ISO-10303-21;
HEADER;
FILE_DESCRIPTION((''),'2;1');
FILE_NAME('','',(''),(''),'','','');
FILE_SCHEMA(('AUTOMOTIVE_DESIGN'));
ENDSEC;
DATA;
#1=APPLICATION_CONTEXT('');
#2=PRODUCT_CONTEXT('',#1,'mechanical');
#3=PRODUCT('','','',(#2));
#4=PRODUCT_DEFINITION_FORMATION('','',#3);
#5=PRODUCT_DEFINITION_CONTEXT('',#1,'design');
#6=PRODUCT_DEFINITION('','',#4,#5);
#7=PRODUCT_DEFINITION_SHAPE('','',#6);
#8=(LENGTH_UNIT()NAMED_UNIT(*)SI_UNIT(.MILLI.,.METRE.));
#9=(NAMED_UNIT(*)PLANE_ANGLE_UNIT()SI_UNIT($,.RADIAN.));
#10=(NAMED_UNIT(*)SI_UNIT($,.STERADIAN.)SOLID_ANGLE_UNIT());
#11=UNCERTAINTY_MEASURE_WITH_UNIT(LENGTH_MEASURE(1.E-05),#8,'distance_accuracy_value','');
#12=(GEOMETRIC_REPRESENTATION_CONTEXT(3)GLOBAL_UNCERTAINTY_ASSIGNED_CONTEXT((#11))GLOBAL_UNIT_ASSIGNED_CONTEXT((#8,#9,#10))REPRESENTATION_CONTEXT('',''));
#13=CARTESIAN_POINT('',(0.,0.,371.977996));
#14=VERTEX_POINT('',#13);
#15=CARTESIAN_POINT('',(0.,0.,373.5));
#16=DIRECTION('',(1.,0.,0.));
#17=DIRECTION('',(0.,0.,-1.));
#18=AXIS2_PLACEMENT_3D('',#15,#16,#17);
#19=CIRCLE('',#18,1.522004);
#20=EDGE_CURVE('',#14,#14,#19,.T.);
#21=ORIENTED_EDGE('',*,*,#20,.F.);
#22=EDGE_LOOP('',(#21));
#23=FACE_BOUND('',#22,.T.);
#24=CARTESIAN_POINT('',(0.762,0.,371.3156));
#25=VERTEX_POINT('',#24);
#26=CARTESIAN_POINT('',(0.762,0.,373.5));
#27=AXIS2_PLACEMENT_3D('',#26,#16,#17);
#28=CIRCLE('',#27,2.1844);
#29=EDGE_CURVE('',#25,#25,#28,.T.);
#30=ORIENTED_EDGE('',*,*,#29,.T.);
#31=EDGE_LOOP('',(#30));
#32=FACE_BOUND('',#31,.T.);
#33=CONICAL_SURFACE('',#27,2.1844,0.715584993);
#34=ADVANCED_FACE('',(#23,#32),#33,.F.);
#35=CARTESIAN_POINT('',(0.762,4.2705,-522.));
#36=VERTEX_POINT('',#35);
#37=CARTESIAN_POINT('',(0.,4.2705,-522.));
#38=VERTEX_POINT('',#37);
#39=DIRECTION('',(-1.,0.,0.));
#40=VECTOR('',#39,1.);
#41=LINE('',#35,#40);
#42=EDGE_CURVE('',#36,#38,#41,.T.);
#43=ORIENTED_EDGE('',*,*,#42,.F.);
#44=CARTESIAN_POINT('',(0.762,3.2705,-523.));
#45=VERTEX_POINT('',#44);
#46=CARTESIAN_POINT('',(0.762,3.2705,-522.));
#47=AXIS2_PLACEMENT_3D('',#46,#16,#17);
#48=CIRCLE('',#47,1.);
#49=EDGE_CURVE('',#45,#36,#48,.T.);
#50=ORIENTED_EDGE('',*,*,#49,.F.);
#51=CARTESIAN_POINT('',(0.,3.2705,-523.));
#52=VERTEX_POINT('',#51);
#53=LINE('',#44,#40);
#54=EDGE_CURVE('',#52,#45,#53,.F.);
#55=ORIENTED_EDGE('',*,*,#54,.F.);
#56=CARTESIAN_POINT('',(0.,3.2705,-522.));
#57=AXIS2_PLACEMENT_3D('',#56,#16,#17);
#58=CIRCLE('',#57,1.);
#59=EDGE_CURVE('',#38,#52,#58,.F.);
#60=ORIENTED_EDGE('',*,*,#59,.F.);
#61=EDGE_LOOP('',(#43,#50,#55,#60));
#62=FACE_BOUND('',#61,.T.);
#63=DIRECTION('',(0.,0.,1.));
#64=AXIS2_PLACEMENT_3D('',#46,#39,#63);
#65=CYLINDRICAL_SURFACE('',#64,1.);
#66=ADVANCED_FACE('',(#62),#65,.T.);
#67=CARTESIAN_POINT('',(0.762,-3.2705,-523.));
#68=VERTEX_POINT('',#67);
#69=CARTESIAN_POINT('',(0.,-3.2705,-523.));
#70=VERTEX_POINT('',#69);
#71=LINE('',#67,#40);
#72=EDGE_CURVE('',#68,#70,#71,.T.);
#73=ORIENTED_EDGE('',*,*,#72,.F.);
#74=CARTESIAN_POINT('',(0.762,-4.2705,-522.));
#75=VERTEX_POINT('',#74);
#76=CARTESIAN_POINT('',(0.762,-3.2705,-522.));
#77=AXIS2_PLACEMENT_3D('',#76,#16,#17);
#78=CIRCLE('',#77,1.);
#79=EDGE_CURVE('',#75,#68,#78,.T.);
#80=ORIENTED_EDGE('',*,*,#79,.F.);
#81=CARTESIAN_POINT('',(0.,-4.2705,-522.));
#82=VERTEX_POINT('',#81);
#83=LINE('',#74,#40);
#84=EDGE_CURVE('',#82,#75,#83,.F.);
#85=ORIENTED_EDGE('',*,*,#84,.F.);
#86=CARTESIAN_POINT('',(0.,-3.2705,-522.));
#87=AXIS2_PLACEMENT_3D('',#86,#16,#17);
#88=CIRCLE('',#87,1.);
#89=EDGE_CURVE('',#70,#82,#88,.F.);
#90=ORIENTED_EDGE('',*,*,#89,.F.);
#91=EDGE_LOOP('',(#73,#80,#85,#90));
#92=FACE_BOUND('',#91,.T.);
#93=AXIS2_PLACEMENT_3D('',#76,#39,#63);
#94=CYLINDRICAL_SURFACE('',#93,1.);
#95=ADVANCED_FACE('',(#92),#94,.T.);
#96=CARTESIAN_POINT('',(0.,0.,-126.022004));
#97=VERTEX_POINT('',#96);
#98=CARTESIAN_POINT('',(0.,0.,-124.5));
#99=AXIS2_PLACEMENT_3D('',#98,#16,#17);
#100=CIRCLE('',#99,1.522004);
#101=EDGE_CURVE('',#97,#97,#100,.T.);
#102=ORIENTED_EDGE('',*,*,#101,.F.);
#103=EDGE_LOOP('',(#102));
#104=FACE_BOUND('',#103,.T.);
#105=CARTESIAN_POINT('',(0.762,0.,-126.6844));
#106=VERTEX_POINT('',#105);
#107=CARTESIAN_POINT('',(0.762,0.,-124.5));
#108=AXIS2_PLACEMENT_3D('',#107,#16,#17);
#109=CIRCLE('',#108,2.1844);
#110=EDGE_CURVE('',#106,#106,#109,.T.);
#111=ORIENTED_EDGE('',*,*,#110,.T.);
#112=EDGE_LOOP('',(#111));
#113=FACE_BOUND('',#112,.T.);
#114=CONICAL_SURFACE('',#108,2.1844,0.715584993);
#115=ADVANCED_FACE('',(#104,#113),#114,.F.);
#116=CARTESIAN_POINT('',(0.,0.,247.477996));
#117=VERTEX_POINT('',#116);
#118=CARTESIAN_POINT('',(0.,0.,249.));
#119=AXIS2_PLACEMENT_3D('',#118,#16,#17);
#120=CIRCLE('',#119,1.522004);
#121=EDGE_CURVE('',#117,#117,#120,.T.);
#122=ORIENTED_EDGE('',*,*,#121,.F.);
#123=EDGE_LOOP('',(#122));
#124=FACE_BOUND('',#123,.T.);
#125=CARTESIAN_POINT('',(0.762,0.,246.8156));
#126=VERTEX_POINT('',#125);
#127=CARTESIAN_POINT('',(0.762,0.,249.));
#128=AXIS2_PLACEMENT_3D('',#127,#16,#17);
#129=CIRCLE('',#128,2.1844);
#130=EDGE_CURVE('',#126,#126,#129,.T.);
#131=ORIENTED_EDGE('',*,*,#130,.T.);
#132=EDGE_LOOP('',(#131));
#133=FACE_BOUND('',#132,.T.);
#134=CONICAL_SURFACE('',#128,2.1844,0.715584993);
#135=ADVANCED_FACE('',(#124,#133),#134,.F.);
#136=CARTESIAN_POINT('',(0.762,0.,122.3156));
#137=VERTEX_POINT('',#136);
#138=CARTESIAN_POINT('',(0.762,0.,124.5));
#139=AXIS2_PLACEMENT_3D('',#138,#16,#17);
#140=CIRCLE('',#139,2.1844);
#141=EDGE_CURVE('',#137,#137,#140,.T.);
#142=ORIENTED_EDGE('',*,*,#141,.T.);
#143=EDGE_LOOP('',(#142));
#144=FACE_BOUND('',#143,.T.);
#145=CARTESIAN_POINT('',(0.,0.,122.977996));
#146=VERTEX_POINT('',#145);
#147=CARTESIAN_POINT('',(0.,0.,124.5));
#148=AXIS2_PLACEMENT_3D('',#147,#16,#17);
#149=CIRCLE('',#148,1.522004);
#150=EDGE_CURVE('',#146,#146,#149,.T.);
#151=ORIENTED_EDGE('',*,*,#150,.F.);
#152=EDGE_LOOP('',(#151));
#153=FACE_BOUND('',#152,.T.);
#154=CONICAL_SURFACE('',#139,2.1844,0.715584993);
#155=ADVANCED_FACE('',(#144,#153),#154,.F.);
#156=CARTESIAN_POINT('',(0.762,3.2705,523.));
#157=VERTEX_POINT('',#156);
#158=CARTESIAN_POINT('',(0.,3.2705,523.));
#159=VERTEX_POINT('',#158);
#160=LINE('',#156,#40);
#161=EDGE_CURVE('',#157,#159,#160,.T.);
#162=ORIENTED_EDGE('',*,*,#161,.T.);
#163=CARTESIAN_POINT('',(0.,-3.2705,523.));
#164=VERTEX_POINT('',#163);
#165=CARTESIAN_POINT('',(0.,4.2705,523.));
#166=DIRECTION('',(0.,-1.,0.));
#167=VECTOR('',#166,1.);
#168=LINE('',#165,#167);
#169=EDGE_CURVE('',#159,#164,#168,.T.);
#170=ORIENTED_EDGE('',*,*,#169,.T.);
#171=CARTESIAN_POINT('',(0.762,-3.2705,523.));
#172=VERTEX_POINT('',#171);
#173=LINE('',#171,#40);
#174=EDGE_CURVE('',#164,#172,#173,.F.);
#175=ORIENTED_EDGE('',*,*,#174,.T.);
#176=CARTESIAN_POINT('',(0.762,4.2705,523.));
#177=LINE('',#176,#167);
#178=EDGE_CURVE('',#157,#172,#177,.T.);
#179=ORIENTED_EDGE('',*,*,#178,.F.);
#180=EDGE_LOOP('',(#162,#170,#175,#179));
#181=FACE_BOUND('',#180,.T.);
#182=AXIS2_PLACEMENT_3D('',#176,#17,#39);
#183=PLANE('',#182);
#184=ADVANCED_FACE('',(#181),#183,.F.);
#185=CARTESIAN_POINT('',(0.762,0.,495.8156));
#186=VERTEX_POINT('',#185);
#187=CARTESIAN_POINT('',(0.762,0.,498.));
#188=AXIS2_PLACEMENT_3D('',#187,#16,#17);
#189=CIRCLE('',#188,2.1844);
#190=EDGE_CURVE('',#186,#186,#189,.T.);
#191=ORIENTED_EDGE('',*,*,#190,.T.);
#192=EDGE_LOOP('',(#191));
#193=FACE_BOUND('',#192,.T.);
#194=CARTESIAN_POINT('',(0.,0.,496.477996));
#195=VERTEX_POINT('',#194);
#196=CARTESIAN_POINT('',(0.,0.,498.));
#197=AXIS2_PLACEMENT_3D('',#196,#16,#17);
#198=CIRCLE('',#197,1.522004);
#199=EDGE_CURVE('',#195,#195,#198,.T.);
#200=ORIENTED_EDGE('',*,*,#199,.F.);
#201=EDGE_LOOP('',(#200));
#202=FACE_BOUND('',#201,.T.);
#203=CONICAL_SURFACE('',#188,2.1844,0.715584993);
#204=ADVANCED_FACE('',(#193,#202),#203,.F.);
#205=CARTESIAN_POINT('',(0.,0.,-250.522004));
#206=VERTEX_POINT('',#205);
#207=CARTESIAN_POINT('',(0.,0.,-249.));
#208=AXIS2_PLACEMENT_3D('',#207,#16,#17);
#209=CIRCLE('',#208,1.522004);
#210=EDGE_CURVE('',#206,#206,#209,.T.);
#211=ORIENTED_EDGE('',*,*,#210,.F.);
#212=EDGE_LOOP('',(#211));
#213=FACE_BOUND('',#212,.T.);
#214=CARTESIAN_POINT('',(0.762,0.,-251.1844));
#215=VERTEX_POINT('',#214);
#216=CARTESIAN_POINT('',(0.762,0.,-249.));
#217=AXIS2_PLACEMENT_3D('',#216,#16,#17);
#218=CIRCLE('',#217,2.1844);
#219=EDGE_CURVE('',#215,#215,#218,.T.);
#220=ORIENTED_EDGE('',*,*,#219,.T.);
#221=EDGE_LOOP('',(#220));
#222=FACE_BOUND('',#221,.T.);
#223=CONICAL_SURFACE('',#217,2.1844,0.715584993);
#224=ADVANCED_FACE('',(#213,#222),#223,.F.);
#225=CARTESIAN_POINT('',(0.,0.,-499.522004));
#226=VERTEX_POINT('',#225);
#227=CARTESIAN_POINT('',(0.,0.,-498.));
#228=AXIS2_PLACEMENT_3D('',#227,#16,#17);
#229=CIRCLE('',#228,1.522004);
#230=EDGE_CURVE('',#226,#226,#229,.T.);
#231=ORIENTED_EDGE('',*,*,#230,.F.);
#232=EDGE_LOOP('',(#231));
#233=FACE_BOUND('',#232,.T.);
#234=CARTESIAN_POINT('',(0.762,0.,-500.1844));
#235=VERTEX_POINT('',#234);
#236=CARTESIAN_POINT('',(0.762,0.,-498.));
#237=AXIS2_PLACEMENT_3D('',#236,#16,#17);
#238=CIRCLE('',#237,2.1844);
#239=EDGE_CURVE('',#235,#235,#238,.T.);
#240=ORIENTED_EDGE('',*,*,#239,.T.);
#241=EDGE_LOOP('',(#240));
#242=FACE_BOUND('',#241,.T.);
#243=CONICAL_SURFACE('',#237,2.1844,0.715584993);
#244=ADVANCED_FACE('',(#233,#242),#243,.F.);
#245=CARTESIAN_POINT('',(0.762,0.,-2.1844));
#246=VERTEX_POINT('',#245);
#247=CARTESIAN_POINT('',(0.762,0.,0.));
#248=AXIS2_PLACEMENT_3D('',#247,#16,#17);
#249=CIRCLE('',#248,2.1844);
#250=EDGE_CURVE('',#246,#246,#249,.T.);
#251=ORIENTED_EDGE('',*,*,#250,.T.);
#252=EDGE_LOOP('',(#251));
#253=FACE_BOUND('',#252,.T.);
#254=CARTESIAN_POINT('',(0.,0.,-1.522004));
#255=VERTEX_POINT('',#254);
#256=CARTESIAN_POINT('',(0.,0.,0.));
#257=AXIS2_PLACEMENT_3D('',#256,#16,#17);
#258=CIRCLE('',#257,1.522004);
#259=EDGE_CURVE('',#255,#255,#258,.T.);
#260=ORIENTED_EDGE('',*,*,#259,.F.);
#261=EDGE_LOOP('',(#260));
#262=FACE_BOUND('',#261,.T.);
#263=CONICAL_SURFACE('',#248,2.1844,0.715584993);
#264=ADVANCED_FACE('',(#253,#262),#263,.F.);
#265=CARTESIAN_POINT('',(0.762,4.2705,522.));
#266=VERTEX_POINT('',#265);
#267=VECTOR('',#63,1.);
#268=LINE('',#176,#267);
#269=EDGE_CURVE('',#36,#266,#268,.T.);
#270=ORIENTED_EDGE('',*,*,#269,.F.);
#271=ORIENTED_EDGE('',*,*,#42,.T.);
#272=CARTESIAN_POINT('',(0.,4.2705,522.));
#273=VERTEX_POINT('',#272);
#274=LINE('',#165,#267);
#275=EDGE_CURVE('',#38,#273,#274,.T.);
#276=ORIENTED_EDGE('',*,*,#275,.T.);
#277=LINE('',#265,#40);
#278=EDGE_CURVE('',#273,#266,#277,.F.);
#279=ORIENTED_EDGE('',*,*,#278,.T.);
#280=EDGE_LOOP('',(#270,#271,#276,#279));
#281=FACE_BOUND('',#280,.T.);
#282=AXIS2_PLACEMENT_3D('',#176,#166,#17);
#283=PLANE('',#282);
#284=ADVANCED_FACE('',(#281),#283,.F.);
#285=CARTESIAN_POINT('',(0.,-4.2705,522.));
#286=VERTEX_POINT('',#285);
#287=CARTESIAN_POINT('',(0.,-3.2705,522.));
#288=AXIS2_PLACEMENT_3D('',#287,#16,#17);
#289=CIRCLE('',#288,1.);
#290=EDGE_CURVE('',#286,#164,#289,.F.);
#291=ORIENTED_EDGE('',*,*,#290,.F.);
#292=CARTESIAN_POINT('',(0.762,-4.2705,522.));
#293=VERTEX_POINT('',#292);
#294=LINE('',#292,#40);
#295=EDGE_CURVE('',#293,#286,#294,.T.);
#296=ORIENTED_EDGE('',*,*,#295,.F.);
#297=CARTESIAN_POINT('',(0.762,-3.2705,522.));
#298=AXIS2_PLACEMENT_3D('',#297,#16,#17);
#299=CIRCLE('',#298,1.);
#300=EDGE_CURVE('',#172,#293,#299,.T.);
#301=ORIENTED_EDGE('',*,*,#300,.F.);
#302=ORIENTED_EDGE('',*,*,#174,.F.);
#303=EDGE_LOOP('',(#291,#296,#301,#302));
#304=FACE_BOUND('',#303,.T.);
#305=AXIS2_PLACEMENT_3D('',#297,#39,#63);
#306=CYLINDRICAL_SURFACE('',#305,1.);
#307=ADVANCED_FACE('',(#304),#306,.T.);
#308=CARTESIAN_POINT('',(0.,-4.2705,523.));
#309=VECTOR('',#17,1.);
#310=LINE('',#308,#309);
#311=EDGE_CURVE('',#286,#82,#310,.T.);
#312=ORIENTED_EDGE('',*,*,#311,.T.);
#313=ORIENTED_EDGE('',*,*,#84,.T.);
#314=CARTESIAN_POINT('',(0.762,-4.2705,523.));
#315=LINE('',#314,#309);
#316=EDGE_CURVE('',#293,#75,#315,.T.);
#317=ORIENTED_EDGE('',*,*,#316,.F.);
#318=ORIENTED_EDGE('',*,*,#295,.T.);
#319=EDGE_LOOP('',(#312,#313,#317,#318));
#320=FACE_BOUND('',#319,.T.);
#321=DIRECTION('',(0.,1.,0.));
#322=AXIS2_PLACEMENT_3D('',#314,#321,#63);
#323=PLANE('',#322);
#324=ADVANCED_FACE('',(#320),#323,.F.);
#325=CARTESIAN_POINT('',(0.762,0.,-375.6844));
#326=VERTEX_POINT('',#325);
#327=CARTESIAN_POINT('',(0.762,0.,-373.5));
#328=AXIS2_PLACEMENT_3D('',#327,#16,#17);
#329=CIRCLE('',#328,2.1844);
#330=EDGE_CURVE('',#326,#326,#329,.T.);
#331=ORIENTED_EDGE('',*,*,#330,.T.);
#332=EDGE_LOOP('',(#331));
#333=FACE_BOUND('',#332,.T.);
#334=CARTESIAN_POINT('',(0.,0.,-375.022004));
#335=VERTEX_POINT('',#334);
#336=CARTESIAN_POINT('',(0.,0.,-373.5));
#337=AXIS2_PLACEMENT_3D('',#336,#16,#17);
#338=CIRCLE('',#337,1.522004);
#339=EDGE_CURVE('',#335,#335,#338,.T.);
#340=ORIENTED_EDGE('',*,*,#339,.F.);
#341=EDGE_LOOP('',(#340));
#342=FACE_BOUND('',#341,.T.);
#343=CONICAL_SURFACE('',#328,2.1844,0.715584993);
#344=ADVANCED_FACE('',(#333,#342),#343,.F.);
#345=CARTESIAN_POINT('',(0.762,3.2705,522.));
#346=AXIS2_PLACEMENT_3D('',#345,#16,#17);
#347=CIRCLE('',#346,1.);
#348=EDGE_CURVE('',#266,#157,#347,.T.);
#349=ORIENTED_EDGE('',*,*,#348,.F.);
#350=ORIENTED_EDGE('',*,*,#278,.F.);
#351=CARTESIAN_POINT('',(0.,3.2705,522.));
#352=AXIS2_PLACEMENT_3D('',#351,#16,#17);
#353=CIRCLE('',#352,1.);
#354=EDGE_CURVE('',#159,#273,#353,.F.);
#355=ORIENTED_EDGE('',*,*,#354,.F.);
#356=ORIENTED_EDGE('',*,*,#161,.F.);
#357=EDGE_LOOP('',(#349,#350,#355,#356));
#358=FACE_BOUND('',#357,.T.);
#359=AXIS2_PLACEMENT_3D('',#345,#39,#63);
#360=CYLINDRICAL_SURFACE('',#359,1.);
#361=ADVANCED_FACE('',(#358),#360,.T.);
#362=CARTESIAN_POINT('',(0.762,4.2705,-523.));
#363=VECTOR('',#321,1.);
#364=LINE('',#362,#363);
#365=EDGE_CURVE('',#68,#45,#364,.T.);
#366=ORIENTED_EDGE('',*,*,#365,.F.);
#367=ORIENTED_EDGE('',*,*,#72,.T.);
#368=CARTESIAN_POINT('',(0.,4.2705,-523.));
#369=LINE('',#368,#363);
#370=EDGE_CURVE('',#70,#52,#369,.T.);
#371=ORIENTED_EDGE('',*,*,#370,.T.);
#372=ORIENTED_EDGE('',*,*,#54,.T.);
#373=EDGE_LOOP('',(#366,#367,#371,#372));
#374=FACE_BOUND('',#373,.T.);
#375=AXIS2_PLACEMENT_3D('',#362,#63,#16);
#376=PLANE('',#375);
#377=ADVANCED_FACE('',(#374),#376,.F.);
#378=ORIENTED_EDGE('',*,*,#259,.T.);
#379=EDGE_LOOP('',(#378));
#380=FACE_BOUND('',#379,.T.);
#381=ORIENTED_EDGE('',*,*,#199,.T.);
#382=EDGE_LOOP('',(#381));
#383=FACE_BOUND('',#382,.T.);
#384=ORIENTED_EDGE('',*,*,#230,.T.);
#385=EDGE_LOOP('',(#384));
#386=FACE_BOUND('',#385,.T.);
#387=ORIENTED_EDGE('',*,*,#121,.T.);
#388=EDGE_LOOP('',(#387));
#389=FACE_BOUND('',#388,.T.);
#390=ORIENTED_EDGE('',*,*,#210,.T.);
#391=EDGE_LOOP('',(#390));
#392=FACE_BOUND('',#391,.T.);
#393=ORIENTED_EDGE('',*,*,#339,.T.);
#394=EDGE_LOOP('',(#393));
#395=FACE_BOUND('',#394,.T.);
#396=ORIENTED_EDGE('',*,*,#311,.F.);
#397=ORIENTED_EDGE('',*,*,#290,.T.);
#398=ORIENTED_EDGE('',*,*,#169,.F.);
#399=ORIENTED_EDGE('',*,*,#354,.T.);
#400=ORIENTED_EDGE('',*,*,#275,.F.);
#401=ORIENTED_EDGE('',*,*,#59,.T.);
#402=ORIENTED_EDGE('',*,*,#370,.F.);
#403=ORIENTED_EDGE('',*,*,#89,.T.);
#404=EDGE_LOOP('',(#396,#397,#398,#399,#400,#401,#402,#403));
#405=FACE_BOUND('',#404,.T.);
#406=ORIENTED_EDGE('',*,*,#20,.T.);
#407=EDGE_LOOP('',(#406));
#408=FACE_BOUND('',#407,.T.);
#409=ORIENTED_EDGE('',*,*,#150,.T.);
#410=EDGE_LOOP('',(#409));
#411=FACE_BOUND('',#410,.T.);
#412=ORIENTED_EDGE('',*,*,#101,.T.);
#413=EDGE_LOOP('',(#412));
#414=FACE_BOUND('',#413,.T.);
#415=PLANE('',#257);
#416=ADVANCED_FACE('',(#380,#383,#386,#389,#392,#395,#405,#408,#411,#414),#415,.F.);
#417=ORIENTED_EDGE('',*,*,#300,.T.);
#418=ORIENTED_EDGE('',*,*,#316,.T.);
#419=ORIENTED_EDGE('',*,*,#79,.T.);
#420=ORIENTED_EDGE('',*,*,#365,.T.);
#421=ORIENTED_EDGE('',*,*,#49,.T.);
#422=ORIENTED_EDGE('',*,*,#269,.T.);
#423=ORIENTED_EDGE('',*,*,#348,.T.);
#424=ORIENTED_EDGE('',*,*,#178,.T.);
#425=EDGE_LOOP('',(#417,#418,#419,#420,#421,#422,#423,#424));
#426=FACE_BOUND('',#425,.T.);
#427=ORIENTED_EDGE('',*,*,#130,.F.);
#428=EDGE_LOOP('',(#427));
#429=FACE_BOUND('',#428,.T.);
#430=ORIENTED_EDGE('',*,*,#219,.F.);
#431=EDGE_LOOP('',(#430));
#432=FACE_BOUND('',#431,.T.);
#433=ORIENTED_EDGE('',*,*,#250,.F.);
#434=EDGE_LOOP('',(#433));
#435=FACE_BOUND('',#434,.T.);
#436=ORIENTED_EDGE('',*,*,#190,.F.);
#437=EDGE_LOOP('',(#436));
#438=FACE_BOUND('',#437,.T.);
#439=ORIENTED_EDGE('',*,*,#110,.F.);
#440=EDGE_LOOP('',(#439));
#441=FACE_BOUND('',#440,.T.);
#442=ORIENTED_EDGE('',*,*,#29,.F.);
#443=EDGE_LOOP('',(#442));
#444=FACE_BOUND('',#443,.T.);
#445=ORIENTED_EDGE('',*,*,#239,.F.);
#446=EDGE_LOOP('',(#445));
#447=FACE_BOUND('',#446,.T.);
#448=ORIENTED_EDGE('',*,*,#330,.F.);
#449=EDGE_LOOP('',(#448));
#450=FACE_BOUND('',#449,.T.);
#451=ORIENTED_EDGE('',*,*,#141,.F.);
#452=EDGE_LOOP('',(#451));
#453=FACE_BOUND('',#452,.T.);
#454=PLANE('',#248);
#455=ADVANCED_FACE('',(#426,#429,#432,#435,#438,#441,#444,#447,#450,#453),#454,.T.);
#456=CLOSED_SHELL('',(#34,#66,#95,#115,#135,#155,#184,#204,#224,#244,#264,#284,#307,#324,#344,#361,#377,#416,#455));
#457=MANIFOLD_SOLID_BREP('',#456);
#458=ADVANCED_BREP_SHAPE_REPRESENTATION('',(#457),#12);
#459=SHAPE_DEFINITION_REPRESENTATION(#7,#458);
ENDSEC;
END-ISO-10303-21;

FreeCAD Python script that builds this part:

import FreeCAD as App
import Part
import Sketcher

V = App.Vector
Q = App.Units.Quantity


def edges_at(feature, points):
    """Names of the edges that pass closest to the given points."""
    edges = feature.Shape.Edges
    near = lambda p: min(range(len(edges)), key=lambda i: edges[i].distToShape(Part.Vertex(*p))[0])
    return sorted({f"Edge{near(p) + 1}" for p in points})

doc = App.newDocument("Part")
body = doc.addObject("PartDesign::Body", "Body")

# Sketch on YZ plane
sketch1 = doc.addObject("Sketcher::SketchObject", "Sketch")
body.addObject(sketch1)
sketch1.AttachmentSupport = (doc.YZ_Plane, [""])
sketch1.MapMode = "FlatFace"
sketch1.addGeometry([
    Part.LineSegment(V(4.2705, 523, 0), V(-4.2705, 523, 0)),
    Part.LineSegment(V(-4.2705, 523, 0), V(-4.2705, -523, 0)),
    Part.LineSegment(V(-4.2705, -523, 0), V(4.2705, -523, 0)),
    Part.LineSegment(V(4.2705, -523, 0), V(4.2705, 523, 0)),
], False)
sketch1.addConstraint([
    Sketcher.Constraint("Coincident", 0, 2, 1, 1),
    Sketcher.Constraint("Coincident", 1, 2, 2, 1),
    Sketcher.Constraint("Coincident", 2, 2, 3, 1),
    Sketcher.Constraint("Coincident", 3, 2, 0, 1),
    Sketcher.Constraint("Horizontal", 0),
    Sketcher.Constraint("Vertical", 1),
    Sketcher.Constraint("Horizontal", 2),
    Sketcher.Constraint("Vertical", 3),
    Sketcher.Constraint("Symmetric", 0, 2, 2, 2, -1, 1),
    Sketcher.Constraint("DistanceX", 0, 2, 0, 1, Q("8.541 mm")),
    Sketcher.Constraint("DistanceY", 1, 2, 1, 1, Q("1046 mm")),
])
pad1 = doc.addObject("PartDesign::Pad", "Pad")
body.addObject(pad1)
pad1.Profile = sketch1
pad1.Length = Q("0.03 in")

# Sketch on XZ plane
sketch2 = doc.addObject("Sketcher::SketchObject", "Sketch001")
body.addObject(sketch2)
sketch2.AttachmentSupport = (doc.XZ_Plane, [""])
sketch2.MapMode = "FlatFace"
sketch2.addGeometry([
    Part.LineSegment(V(0, 498, 0), V(0.762, 498, 0)),  # 0
    Part.LineSegment(V(0.762, 498, 0), V(0.762, 495.8156, 0)),  # 1
    Part.LineSegment(V(0.762, 495.8156, 0), V(-0.348336, 496.7808, 0)),  # 2
    Part.LineSegment(V(-0.348336, 496.7808, 0), V(0, 496.7808, 0)),  # 3
    Part.LineSegment(V(0, 496.7808, 0), V(0, 498, 0)),  # 4
], False)
sketch2.addGeometry(Part.LineSegment(V(0.762, 498, 0), V(-0.348336, 498, 0)), True)  # axis
sketch2.addConstraint([
    Sketcher.Constraint("Coincident", 0, 2, 1, 1),
    Sketcher.Constraint("Coincident", 1, 2, 2, 1),
    Sketcher.Constraint("Coincident", 2, 2, 3, 1),
    Sketcher.Constraint("Coincident", 3, 2, 4, 1),
    Sketcher.Constraint("Coincident", 4, 2, 0, 1),
    Sketcher.Constraint("Horizontal", 0),
    Sketcher.Constraint("Vertical", 1),
    Sketcher.Constraint("Horizontal", 3),
    Sketcher.Constraint("Vertical", 4),
    Sketcher.Constraint("Horizontal", 5),
    Sketcher.Constraint("Coincident", 5, 1, 0, 2),
    Sketcher.Constraint("PointOnObject", 3, 2, -2),
    Sketcher.Constraint("Vertical", 2, 2, 5, 2),
    Sketcher.Constraint("Angle", 2, Q("139 deg")),
    Sketcher.Constraint("DistanceX", 0, 1, 0, 2, Q("0.03 in")),
    Sketcher.Constraint("DistanceY", 1, 2, 1, 1, Q("0.086 in")),
    Sketcher.Constraint("DistanceY", 4, 1, 4, 2, Q("0.048 in")),
    Sketcher.Constraint("DistanceY", -1, 1, 0, 2, Q("498 mm")),
])
groove = doc.addObject("PartDesign::Groove", "Groove")
body.addObject(groove)
groove.Profile = sketch2
groove.ReferenceAxis = (sketch2, ["Axis0"])
groove.Angle = 360
doc.recompute()

linearpattern = doc.addObject("PartDesign::LinearPattern", "LinearPattern")
body.addObject(linearpattern)
linearpattern.Originals = [groove]
linearpattern.Direction = (doc.Z_Axis, [""])
linearpattern.Mode = "offset"
linearpattern.Offset = 124.5
linearpattern.Occurrences = 9
linearpattern.Reversed = True
body.Tip = linearpattern
doc.recompute()

fillet = doc.addObject("PartDesign::Fillet", "Fillet")
body.addObject(fillet)
fillet.Base = (linearpattern, edges_at(linearpattern, [
    (0.381, -4.271, -523),
    (0.381, -4.271, 523),
    (0.381, 4.271, 523),
    (0.381, 4.271, -523),
]))
fillet.Radius = 1

doc.recompute()
